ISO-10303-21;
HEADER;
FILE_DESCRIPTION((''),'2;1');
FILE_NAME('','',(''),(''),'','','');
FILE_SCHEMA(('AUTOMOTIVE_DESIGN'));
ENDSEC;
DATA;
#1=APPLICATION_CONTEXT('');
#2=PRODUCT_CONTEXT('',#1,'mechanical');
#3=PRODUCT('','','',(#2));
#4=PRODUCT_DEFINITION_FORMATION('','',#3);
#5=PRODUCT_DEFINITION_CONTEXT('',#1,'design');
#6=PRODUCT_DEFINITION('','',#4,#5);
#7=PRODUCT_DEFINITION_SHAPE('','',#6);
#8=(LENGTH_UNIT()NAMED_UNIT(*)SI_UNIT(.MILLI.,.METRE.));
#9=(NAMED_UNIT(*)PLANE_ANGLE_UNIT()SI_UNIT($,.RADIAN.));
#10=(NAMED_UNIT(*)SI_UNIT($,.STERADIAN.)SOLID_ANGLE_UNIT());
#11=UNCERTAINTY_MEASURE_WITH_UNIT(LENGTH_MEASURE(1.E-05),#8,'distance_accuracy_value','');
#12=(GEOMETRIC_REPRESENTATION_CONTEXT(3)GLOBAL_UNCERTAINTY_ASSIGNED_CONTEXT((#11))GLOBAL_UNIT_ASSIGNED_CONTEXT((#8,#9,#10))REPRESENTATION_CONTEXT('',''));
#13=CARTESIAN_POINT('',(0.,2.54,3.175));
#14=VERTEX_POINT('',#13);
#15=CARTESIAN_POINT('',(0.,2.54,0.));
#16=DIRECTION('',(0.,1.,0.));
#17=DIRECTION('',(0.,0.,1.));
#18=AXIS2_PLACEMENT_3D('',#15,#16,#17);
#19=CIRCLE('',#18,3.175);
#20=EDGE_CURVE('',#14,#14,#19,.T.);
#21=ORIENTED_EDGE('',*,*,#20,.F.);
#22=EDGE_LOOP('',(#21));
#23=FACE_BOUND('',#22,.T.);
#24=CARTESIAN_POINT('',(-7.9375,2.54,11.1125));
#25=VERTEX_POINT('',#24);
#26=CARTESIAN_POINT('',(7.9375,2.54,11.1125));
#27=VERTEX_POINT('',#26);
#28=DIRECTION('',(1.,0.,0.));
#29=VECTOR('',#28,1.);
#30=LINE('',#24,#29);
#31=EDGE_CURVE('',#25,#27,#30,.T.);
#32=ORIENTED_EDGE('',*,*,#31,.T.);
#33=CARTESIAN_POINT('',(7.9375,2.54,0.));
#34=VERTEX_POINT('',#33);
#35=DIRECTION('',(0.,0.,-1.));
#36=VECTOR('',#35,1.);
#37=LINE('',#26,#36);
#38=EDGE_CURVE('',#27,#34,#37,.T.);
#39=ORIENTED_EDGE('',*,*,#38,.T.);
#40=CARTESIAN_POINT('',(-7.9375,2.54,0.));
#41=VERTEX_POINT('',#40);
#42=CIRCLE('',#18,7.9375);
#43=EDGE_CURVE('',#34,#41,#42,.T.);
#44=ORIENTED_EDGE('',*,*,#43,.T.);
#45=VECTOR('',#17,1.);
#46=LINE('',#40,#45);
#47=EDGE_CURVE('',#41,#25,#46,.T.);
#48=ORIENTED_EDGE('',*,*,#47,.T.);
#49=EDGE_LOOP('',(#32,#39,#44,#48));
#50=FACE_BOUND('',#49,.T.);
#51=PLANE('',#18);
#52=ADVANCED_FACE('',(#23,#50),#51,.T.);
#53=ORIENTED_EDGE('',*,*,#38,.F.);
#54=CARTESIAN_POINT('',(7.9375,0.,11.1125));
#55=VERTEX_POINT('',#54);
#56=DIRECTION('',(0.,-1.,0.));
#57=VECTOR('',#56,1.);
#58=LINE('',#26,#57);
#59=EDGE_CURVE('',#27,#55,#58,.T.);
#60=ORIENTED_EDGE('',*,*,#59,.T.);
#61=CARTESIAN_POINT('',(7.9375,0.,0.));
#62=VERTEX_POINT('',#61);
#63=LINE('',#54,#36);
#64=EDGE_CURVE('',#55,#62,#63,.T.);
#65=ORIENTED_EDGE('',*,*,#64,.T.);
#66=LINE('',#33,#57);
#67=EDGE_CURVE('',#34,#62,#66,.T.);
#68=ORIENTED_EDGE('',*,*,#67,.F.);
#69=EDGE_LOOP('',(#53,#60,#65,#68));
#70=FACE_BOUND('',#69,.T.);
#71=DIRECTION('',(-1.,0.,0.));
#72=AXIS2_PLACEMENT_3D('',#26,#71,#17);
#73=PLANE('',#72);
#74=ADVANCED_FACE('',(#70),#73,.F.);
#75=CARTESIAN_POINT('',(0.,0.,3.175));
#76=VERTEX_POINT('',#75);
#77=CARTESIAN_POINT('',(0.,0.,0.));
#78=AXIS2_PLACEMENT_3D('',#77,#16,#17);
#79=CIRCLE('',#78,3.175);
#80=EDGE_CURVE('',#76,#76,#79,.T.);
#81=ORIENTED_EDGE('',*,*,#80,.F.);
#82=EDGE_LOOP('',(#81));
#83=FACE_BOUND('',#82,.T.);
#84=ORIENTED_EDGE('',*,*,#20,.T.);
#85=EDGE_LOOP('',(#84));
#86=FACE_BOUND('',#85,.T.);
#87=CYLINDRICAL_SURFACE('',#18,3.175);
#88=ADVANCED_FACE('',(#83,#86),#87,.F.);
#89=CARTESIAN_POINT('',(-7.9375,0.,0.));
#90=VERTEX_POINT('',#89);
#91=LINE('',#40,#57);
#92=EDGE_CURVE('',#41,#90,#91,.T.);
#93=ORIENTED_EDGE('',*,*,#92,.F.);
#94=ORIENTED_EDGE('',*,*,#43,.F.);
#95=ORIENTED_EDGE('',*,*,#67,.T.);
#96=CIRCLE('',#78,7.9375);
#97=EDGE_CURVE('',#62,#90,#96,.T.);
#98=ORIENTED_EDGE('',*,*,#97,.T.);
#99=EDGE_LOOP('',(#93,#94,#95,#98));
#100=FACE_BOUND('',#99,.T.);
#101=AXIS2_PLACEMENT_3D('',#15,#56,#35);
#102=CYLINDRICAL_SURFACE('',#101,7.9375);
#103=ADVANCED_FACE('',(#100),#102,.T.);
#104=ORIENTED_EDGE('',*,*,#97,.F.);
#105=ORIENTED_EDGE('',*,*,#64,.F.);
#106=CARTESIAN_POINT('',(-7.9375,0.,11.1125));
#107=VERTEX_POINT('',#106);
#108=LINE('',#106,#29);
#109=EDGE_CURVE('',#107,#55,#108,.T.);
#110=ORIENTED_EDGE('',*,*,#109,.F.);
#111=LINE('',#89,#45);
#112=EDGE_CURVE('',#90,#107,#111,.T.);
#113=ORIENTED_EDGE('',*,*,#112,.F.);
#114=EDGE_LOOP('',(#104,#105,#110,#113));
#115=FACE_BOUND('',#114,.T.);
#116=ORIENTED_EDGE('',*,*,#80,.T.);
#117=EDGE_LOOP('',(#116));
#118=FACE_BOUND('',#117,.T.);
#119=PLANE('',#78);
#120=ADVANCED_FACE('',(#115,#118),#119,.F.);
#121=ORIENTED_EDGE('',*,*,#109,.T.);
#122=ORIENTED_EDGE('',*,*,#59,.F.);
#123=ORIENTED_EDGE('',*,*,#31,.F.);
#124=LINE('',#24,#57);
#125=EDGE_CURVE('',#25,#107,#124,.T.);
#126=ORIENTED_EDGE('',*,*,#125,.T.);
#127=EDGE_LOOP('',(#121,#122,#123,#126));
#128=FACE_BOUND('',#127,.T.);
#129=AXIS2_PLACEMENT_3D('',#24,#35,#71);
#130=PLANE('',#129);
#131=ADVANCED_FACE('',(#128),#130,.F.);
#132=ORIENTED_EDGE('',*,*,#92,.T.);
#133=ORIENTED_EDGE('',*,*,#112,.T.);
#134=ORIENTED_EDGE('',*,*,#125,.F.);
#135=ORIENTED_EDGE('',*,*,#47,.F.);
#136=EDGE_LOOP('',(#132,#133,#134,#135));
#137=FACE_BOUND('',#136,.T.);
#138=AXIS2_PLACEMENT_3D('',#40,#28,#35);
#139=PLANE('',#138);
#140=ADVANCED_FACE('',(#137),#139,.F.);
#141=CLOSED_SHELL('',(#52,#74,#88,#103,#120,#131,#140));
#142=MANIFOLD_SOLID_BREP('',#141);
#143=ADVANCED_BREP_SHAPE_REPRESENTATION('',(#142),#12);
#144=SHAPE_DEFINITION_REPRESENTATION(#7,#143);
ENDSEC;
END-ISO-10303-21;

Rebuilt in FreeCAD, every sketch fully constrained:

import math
import FreeCAD as App
import Part
import Sketcher

V = App.Vector
Q = App.Units.Quantity

doc = App.newDocument("Part")
body = doc.addObject("PartDesign::Body", "Body")

sketch1 = body.newObject("Sketcher::SketchObject", "Sketch")
sketch1.AttachmentSupport = (doc.getObject("XZ_Plane"), [""])
sketch1.MapMode = "FlatFace"
sketch1.addGeometry(Part.LineSegment(V(-8, 11, 0), V(8, 11, 0)), False)
sketch1.addGeometry(Part.LineSegment(V(8, 11, 0), V(8, 0, 0)), False)
sketch1.addGeometry(Part.ArcOfCircle(Part.Circle(V(0, 0, 0), V(0, 0, 1), 8), math.radians(180), math.radians(360)), False)
sketch1.addGeometry(Part.LineSegment(V(-8, 0, 0), V(-8, 11, 0)), False)
sketch1.addConstraint(Sketcher.Constraint("Coincident", 0, 2, 1, 1))
sketch1.addConstraint(Sketcher.Constraint("Tangent", 1, 2, 2, 2))
sketch1.addConstraint(Sketcher.Constraint("Tangent", 2, 1, 3, 1))
sketch1.addConstraint(Sketcher.Constraint("Coincident", 3, 2, 0, 1))
sketch1.addConstraint(Sketcher.Constraint("Horizontal", 0))
sketch1.addConstraint(Sketcher.Constraint("Vertical", 1))
sketch1.addConstraint(Sketcher.Constraint("Vertical", 3))
sketch1.addConstraint(Sketcher.Constraint("Coincident", 2, 3, -1, 1))
sketch1.addConstraint(Sketcher.Constraint("Radius", 2, Q("0.3125 in")))
sketch1.addConstraint(Sketcher.Constraint("DistanceY", 1, 2, 1, 1, Q("0.4375 in")))
pad1 = body.newObject("PartDesign::Pad", "Pad")
pad1.Profile = sketch1
pad1.Length = Q("0.1 in")
pad1.Reversed = True

sketch2 = body.newObject("Sketcher::SketchObject", "Sketch001")
sketch2.AttachmentSupport = (doc.getObject("XZ_Plane"), [""])
sketch2.MapMode = "FlatFace"
sketch2.AttachmentOffset = App.Placement(V(0, 0, -0.1 * 25.4), App.Rotation())
sketch2.addGeometry(Part.Circle(V(0, 0, 0), V(0, 0, 1), 3.2), False)
sketch2.addConstraint(Sketcher.Constraint("Coincident", 0, 3, -1, 1))
sketch2.addConstraint(Sketcher.Constraint("Diameter", 0, Q("0.25 in")))
doc.recompute()
hole = body.newObject("PartDesign::Hole", "Hole")
hole.Profile = sketch2
hole.ThreadType = "None"
hole.Diameter = Q("0.25 in")
hole.DepthType = "ThroughAll"
hole.Reversed = True

doc.recompute()
